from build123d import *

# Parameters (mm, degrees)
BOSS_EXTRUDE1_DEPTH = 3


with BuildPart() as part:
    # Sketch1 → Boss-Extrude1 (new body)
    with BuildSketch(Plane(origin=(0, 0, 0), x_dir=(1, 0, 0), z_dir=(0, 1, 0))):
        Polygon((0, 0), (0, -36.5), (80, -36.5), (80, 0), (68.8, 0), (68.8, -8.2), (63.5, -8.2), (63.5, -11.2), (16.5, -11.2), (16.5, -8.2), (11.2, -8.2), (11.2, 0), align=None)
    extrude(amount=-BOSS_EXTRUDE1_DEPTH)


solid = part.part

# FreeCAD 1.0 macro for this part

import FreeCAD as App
import Part
import Sketcher

V = App.Vector
Q = App.Units.Quantity


def add_polygon(sketch, points):
    """Adds a closed chain of lines whose ends are joined by coincident constraints."""
    first, n = sketch.GeometryCount, len(points)
    for a, b in zip(points, points[1:] + points[:1]):
        sketch.addGeometry(Part.LineSegment(App.Vector(*a, 0), App.Vector(*b, 0)), False)
    for i in range(n):
        sketch.addConstraint(Sketcher.Constraint("Coincident", first + i, 2, first + (i + 1) % n, 1))

doc = App.newDocument("Part")
body = doc.addObject("PartDesign::Body", "Body")

# Sketch on XZ plane
sketch1 = doc.addObject("Sketcher::SketchObject", "Sketch")
body.addObject(sketch1)
sketch1.AttachmentSupport = (doc.XZ_Plane, [""])
sketch1.MapMode = "FlatFace"
add_polygon(sketch1, [(0, 0), (0, 36.5), (80, 36.5), (80, 0), (68.8, 0), (68.8, 8.2), (63.5, 8.2), (63.5, 11.2), (16.5, 11.2), (16.5, 8.2), (11.2, 8.2), (11.2, 0)])  # lines 0-11
sketch1.addConstraint([
    Sketcher.Constraint("Vertical", 0),
    Sketcher.Constraint("Horizontal", 1),
    Sketcher.Constraint("Vertical", 2),
    Sketcher.Constraint("Horizontal", 3),
    Sketcher.Constraint("Vertical", 4),
    Sketcher.Constraint("Horizontal", 5),
    Sketcher.Constraint("Vertical", 6),
    Sketcher.Constraint("Horizontal", 7),
    Sketcher.Constraint("Vertical", 8),
    Sketcher.Constraint("Horizontal", 9),
    Sketcher.Constraint("Vertical", 10),
    Sketcher.Constraint("Horizontal", 11),
    Sketcher.Constraint("Coincident", 11, 2, -1, 1),
    Sketcher.Constraint("PointOnObject", 2, 2, -1),
    Sketcher.Constraint("Horizontal", 5, 2, 8, 2),
    Sketcher.Constraint("Equal", 5, 9),
    Sketcher.Constraint("Equal", 3, 11),
    Sketcher.Constraint("DistanceX", 1, 1, 1, 2, Q("80 mm")),
    Sketcher.Constraint("DistanceX", 7, 2, 7, 1, Q("47 mm")),
    Sketcher.Constraint("DistanceY", 6, 1, 6, 2, Q("3 mm")),
    Sketcher.Constraint("DistanceX", 3, 2, 3, 1, Q("11.2 mm")),
    Sketcher.Constraint("DistanceY", 0, 1, 0, 2, Q("36.5 mm")),
    Sketcher.Constraint("DistanceY", 4, 1, 4, 2, Q("8.2 mm")),
])
pad1 = doc.addObject("PartDesign::Pad", "Pad")
body.addObject(pad1)
pad1.Profile = sketch1
pad1.Length = 3

doc.recompute()
